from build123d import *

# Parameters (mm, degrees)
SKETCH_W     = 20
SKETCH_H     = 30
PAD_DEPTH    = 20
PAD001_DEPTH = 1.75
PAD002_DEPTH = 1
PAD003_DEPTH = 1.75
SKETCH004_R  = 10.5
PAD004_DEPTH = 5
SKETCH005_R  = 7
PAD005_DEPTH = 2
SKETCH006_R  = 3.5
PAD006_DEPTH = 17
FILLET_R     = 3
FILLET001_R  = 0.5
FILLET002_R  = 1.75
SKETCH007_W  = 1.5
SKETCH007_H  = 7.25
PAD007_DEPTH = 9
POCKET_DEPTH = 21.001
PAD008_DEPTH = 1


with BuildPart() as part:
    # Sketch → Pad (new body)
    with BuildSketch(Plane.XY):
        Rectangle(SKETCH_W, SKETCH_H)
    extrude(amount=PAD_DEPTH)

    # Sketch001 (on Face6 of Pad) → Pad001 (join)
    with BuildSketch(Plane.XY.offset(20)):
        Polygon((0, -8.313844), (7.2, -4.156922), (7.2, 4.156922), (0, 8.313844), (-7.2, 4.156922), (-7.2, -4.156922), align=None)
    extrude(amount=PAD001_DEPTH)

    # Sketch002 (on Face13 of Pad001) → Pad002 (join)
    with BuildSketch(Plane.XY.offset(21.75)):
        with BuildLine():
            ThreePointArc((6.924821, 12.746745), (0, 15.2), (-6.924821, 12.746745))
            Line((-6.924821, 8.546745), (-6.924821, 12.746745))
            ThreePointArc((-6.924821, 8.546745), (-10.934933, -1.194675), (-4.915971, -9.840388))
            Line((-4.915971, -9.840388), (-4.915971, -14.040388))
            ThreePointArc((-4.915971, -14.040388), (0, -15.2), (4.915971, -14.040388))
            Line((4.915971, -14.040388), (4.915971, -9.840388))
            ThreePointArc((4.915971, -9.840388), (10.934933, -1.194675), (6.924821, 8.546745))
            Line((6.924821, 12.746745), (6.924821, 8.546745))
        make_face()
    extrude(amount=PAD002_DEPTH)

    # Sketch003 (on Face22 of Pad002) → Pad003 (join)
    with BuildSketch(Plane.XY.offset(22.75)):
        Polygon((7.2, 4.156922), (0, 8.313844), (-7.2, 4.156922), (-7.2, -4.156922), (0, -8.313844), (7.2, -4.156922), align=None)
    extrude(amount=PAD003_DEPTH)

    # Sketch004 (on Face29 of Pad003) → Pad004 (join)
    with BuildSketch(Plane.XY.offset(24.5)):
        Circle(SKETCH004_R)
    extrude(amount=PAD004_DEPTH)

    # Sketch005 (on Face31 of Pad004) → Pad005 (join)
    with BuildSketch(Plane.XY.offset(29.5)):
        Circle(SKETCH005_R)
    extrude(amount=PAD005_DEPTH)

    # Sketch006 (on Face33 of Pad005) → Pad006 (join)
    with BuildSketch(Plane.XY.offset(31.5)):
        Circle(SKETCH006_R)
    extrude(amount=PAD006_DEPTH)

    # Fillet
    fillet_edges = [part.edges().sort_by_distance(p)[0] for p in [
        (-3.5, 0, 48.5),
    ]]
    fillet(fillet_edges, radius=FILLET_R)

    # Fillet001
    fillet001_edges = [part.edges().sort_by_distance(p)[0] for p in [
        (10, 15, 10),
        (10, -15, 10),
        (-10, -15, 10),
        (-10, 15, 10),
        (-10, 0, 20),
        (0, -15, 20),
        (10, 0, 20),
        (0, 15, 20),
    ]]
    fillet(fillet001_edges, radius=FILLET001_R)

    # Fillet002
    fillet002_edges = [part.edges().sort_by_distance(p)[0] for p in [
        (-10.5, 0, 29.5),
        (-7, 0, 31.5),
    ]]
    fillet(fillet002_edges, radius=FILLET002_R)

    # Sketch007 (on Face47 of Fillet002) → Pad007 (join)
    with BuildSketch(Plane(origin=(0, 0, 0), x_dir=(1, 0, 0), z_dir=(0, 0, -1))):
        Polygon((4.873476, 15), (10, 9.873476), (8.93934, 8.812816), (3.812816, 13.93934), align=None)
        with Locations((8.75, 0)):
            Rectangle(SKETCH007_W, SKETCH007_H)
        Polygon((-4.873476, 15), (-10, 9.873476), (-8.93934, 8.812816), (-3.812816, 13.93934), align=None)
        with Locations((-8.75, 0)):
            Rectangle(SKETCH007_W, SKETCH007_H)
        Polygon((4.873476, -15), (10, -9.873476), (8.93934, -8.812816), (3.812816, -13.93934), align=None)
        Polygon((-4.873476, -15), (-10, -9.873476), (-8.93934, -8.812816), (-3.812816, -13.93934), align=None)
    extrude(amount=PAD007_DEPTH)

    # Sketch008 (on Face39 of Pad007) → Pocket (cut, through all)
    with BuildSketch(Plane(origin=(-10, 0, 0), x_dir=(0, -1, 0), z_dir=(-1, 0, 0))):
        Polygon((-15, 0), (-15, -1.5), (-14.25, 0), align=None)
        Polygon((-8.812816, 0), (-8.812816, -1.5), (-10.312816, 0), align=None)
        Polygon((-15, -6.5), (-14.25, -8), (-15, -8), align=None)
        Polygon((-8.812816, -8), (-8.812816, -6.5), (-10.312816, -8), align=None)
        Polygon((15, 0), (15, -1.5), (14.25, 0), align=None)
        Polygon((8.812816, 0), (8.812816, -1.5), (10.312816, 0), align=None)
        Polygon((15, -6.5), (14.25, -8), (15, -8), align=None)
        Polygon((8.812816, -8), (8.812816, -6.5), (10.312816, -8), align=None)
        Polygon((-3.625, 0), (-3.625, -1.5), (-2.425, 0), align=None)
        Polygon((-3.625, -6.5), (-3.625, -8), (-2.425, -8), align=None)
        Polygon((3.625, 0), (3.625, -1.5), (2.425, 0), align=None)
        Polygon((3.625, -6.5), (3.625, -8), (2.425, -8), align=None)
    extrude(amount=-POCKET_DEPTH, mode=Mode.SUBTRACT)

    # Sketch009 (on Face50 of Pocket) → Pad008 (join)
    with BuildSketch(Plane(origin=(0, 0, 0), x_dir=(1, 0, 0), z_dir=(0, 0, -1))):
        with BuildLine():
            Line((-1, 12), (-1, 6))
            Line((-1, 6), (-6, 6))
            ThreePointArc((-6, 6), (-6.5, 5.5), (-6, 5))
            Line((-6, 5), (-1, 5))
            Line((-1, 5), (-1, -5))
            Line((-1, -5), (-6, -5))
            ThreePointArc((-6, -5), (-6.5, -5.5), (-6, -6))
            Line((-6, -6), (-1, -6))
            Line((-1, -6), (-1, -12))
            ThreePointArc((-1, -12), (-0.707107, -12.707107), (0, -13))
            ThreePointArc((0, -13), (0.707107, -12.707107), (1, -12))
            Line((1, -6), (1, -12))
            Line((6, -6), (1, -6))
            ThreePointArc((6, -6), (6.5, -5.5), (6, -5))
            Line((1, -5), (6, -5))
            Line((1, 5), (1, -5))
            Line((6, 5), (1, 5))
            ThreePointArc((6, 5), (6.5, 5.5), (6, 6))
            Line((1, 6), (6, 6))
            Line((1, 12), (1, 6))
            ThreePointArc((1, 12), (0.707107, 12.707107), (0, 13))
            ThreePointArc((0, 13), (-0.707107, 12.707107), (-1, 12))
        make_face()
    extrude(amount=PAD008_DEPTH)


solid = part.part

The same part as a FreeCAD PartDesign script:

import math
import FreeCAD as App
import Part
import Sketcher
Q = App.Units.Quantity


def edges_at(feature, points):
    """Names of the edges that pass closest to the given points."""
    edges = feature.Shape.Edges
    near = lambda p: min(range(len(edges)), key=lambda i: edges[i].distToShape(Part.Vertex(*p))[0])
    return sorted({f"Edge{near(p) + 1}" for p in points})

doc = App.newDocument("Part")
body = doc.addObject("PartDesign::Body", "Body")

sketch1 = doc.addObject("Sketcher::SketchObject", "Sketch")
body.addObject(sketch1)
sketch1.AttachmentSupport = (doc.XY_Plane, [""])
sketch1.MapMode = "FlatFace"
sketch1.addGeometry([
    Part.LineSegment(App.Vector(-10, 15, 0), App.Vector(-10, -15, 0)),
    Part.LineSegment(App.Vector(-10, -15, 0), App.Vector(10, -15, 0)),
    Part.LineSegment(App.Vector(10, -15, 0), App.Vector(10, 15, 0)),
    Part.LineSegment(App.Vector(10, 15, 0), App.Vector(-10, 15, 0)),
], False)
sketch1.addConstraint([
    Sketcher.Constraint("Coincident", 0, 2, 1, 1),
    Sketcher.Constraint("Coincident", 1, 2, 2, 1),
    Sketcher.Constraint("Coincident", 2, 2, 3, 1),
    Sketcher.Constraint("Coincident", 3, 2, 0, 1),
    Sketcher.Constraint("Vertical", 0),
    Sketcher.Constraint("Horizontal", 1),
    Sketcher.Constraint("Vertical", 2),
    Sketcher.Constraint("Horizontal", 3),
    Sketcher.Constraint("Symmetric", 0, 2, 2, 2, -1, 1),
    Sketcher.Constraint("DistanceX", 1, 1, 1, 2, Q("20 mm")),
    Sketcher.Constraint("DistanceY", 0, 2, 0, 1, Q("30 mm")),
])
pad1 = doc.addObject("PartDesign::Pad", "Pad")
body.addObject(pad1)
pad1.Profile = sketch1
pad1.Length = 20

sketch2 = doc.addObject("Sketcher::SketchObject", "Sketch001")
body.addObject(sketch2)
sketch2.AttachmentSupport = (doc.XY_Plane, [""])
sketch2.MapMode = "FlatFace"
sketch2.AttachmentOffset = App.Placement(App.Vector(0, 0, 20), App.Rotation())
sketch2.addGeometry([
    Part.LineSegment(App.Vector(0, -8, 0), App.Vector(7, -4, 0)),
    Part.LineSegment(App.Vector(7, -4, 0), App.Vector(7, 4, 0)),
    Part.LineSegment(App.Vector(7, 4, 0), App.Vector(0, 8, 0)),
    Part.LineSegment(App.Vector(0, 8, 0), App.Vector(-7, 4, 0)),
    Part.LineSegment(App.Vector(-7, 4, 0), App.Vector(-7, -4, 0)),
    Part.LineSegment(App.Vector(-7, -4, 0), App.Vector(0, -8, 0)),
], False)
sketch2.addConstraint([
    Sketcher.Constraint("Coincident", 0, 2, 1, 1),
    Sketcher.Constraint("Coincident", 1, 2, 2, 1),
    Sketcher.Constraint("Coincident", 2, 2, 3, 1),
    Sketcher.Constraint("Coincident", 3, 2, 4, 1),
    Sketcher.Constraint("Coincident", 4, 2, 5, 1),
    Sketcher.Constraint("Coincident", 5, 2, 0, 1),
    Sketcher.Constraint("Vertical", 1),
    Sketcher.Constraint("Vertical", 4),
    Sketcher.Constraint("Symmetric", 0, 2, 3, 2, -1, 1),
    Sketcher.Constraint("Symmetric", 2, 2, 5, 2, -1, 1),
    Sketcher.Constraint("PointOnObject", 2, 2, -2),
    Sketcher.Constraint("Parallel", 2, 5),
    Sketcher.Constraint("Horizontal", 1, 2, 3, 2),
    Sketcher.Constraint("Angle", 0, Q("30 deg")),
    Sketcher.Constraint("DistanceX", -1, 1, 0, 2, Q("7.2 mm")),
    Sketcher.Constraint("DistanceY", 1, 1, 1, 2, Q("8.313844 mm")),
])
pad2 = doc.addObject("PartDesign::Pad", "Pad001")
body.addObject(pad2)
pad2.Profile = sketch2
pad2.Length = 1.75

sketch3 = doc.addObject("Sketcher::SketchObject", "Sketch002")
body.addObject(sketch3)
sketch3.AttachmentSupport = (doc.XY_Plane, [""])
sketch3.MapMode = "FlatFace"
sketch3.AttachmentOffset = App.Placement(App.Vector(0, 0, 21.75), App.Rotation())
sketch3.addGeometry([
    Part.ArcOfCircle(Part.Circle(App.Vector(0, 4.2, 0), App.Vector(0, 0, 1), 11), math.radians(51), math.radians(129)),
    Part.LineSegment(App.Vector(-6.9, 12.7, 0), App.Vector(-6.9, 8.5, 0)),
    Part.ArcOfCircle(Part.Circle(App.Vector(0, 0, 0), App.Vector(0, 0, 1), 11), math.radians(129), math.radians(243)),
    Part.LineSegment(App.Vector(-4.9, -9.8, 0), App.Vector(-4.9, -14, 0)),
    Part.ArcOfCircle(Part.Circle(App.Vector(0, -4.2, 0), App.Vector(0, 0, 1), 11), math.radians(-117), math.radians(-63)),
    Part.LineSegment(App.Vector(4.9, -14, 0), App.Vector(4.9, -9.8, 0)),
    Part.ArcOfCircle(Part.Circle(App.Vector(0, 0, 0), App.Vector(0, 0, 1), 11), math.radians(-63), math.radians(51)),
    Part.LineSegment(App.Vector(6.9, 8.5, 0), App.Vector(6.9, 12.7, 0)),
], False)
sketch3.addConstraint([
    Sketcher.Constraint("Coincident", 0, 2, 1, 1),
    Sketcher.Constraint("Coincident", 1, 2, 2, 1),
    Sketcher.Constraint("Coincident", 2, 2, 3, 1),
    Sketcher.Constraint("Coincident", 3, 2, 4, 1),
    Sketcher.Constraint("Coincident", 4, 2, 5, 1),
    Sketcher.Constraint("Coincident", 5, 2, 6, 1),
    Sketcher.Constraint("Coincident", 6, 2, 7, 1),
    Sketcher.Constraint("Coincident", 7, 2, 0, 1),
    Sketcher.Constraint("Vertical", 1),
    Sketcher.Constraint("Vertical", 3),
    Sketcher.Constraint("Vertical", 5),
    Sketcher.Constraint("Vertical", 7),
    Sketcher.Constraint("Coincident", 2, 3, -1, 1),
    Sketcher.Constraint("Coincident", 6, 3, -1, 1),
    Sketcher.Constraint("Equal", 0, 2),
    Sketcher.Constraint("Equal", 2, 6),
    Sketcher.Constraint("Symmetric", 0, 3, 4, 3, -1, 1),
    Sketcher.Constraint("Symmetric", 3, 2, 4, 2, -2),
    Sketcher.Constraint("Horizontal", 1, 2, 6, 2),
    Sketcher.Constraint("Equal", 1, 3),
    Sketcher.Constraint("Radius", 0, Q("10.999999 mm")),
    Sketcher.Constraint("DistanceY", 1, 2, 1, 1, Q("4.2 mm")),
    Sketcher.Constraint("DistanceX", 0, 2, -1, 1, Q("6.924821 mm")),
    Sketcher.Constraint("DistanceX", 2, 2, -1, 1, Q("4.915971 mm")),
])
pad3 = doc.addObject("PartDesign::Pad", "Pad002")
body.addObject(pad3)
pad3.Profile = sketch3
pad3.Length = 1

sketch4 = doc.addObject("Sketcher::SketchObject", "Sketch003")
body.addObject(sketch4)
sketch4.AttachmentSupport = (doc.XY_Plane, [""])
sketch4.MapMode = "FlatFace"
sketch4.AttachmentOffset = App.Placement(App.Vector(0, 0, 22.75), App.Rotation())
sketch4.addGeometry([
    Part.LineSegment(App.Vector(7, 4, 0), App.Vector(0, 8, 0)),
    Part.LineSegment(App.Vector(0, 8, 0), App.Vector(-7, 4, 0)),
    Part.LineSegment(App.Vector(-7, 4, 0), App.Vector(-7, -4, 0)),
    Part.LineSegment(App.Vector(-7, -4, 0), App.Vector(0, -8, 0)),
    Part.LineSegment(App.Vector(0, -8, 0), App.Vector(7, -4, 0)),
    Part.LineSegment(App.Vector(7, -4, 0), App.Vector(7, 4, 0)),
], False)
sketch4.addConstraint([
    Sketcher.Constraint("Coincident", 0, 2, 1, 1),
    Sketcher.Constraint("Coincident", 1, 2, 2, 1),
    Sketcher.Constraint("Coincident", 2, 2, 3, 1),
    Sketcher.Constraint("Coincident", 3, 2, 4, 1),
    Sketcher.Constraint("Coincident", 4, 2, 5, 1),
    Sketcher.Constraint("Coincident", 5, 2, 0, 1),
    Sketcher.Constraint("Vertical", 2),
    Sketcher.Constraint("Vertical", 5),
    Sketcher.Constraint("Symmetric", 0, 2, 3, 2, -1, 1),
    Sketcher.Constraint("Symmetric", 1, 2, 4, 2, -1, 1),
    Sketcher.Constraint("PointOnObject", 0, 2, -2),
    Sketcher.Constraint("Parallel", 0, 3),
    Sketcher.Constraint("Horizontal", 2, 2, 4, 2),
    Sketcher.Constraint("Angle", 0, Q("150 deg")),
    Sketcher.Constraint("DistanceX", 1, 2, -1, 1, Q("7.2 mm")),
    Sketcher.Constraint("DistanceY", 2, 2, 2, 1, Q("8.313844 mm")),
])
pad4 = doc.addObject("PartDesign::Pad", "Pad003")
body.addObject(pad4)
pad4.Profile = sketch4
pad4.Length = 1.75

sketch5 = doc.addObject("Sketcher::SketchObject", "Sketch004")
body.addObject(sketch5)
sketch5.AttachmentSupport = (doc.XY_Plane, [""])
sketch5.MapMode = "FlatFace"
sketch5.AttachmentOffset = App.Placement(App.Vector(0, 0, 24.5), App.Rotation())
sketch5.addGeometry(Part.Circle(App.Vector(0, 0, 0), App.Vector(0, 0, 1), 10), False)
sketch5.addConstraint([
    Sketcher.Constraint("Coincident", 0, 3, -1, 1),
    Sketcher.Constraint("Diameter", 0, Q("21 mm")),
])
pad5 = doc.addObject("PartDesign::Pad", "Pad004")
body.addObject(pad5)
pad5.Profile = sketch5
pad5.Length = 5

sketch6 = doc.addObject("Sketcher::SketchObject", "Sketch005")
body.addObject(sketch6)
sketch6.AttachmentSupport = (doc.XY_Plane, [""])
sketch6.MapMode = "FlatFace"
sketch6.AttachmentOffset = App.Placement(App.Vector(0, 0, 29.5), App.Rotation())
sketch6.addGeometry(Part.Circle(App.Vector(0, 0, 0), App.Vector(0, 0, 1), 7), False)
sketch6.addConstraint([
    Sketcher.Constraint("Coincident", 0, 3, -1, 1),
    Sketcher.Constraint("Diameter", 0, Q("14 mm")),
])
pad6 = doc.addObject("PartDesign::Pad", "Pad005")
body.addObject(pad6)
pad6.Profile = sketch6
pad6.Length = 2

sketch7 = doc.addObject("Sketcher::SketchObject", "Sketch006")
body.addObject(sketch7)
sketch7.AttachmentSupport = (doc.XY_Plane, [""])
sketch7.MapMode = "FlatFace"
sketch7.AttachmentOffset = App.Placement(App.Vector(0, 0, 31.5), App.Rotation())
sketch7.addGeometry(Part.Circle(App.Vector(0, 0, 0), App.Vector(0, 0, 1), 3.5), False)
sketch7.addConstraint([
    Sketcher.Constraint("Coincident", 0, 3, -1, 1),
    Sketcher.Constraint("Diameter", 0, Q("7 mm")),
])
pad7 = doc.addObject("PartDesign::Pad", "Pad006")
body.addObject(pad7)
pad7.Profile = sketch7
pad7.Length = 17
doc.recompute()

fillet = doc.addObject("PartDesign::Fillet", "Fillet")
body.addObject(fillet)
fillet.Base = (pad7, edges_at(pad7, [(-3.5, 0, 48.5)]))
fillet.Radius = 3
doc.recompute()

fillet2 = doc.addObject("PartDesign::Fillet", "Fillet001")
body.addObject(fillet2)
fillet2.Base = (fillet, edges_at(fillet, [
    (10, 15, 10),
    (10, -15, 10),
    (-10, -15, 10),
    (-10, 15, 10),
    (-10, 0, 20),
    (0, -15, 20),
    (10, 0, 20),
    (0, 15, 20),
]))
fillet2.Radius = 0.5
doc.recompute()

fillet3 = doc.addObject("PartDesign::Fillet", "Fillet002")
body.addObject(fillet3)
fillet3.Base = (fillet2, edges_at(fillet2, [(-10.5, 0, 29.5), (-7, 0, 31.5)]))
fillet3.Radius = 1.75

sketch8 = doc.addObject("Sketcher::SketchObject", "Sketch007")
body.addObject(sketch8)
sketch8.AttachmentSupport = (doc.XY_Plane, [""])
sketch8.MapMode = "FlatFace"
sketch8.addGeometry([
    Part.LineSegment(App.Vector(10, -9.9, 0), App.Vector(4.9, -15, 0)),
    Part.LineSegment(App.Vector(4.9, -15, 0), App.Vector(3.8, -13.9, 0)),
    Part.LineSegment(App.Vector(3.8, -13.9, 0), App.Vector(8.9, -8.8, 0)),
    Part.LineSegment(App.Vector(8.9, -8.8, 0), App.Vector(10, -9.9, 0)),
    Part.LineSegment(App.Vector(8, -3.6, 0), App.Vector(8, 3.6, 0)),
    Part.LineSegment(App.Vector(8, 3.6, 0), App.Vector(9.5, 3.6, 0)),
    Part.LineSegment(App.Vector(9.5, 3.6, 0), App.Vector(9.5, -3.6, 0)),
    Part.LineSegment(App.Vector(9.5, -3.6, 0), App.Vector(8, -3.6, 0)),
    Part.LineSegment(App.Vector(-4.9, -15, 0), App.Vector(-10, -9.9, 0)),
    Part.LineSegment(App.Vector(-10, -9.9, 0), App.Vector(-8.9, -8.8, 0)),
    Part.LineSegment(App.Vector(-8.9, -8.8, 0), App.Vector(-3.8, -13.9, 0)),
    Part.LineSegment(App.Vector(-3.8, -13.9, 0), App.Vector(-4.9, -15, 0)),
    Part.LineSegment(App.Vector(-9.5, -3.6, 0), App.Vector(-9.5, 3.6, 0)),
    Part.LineSegment(App.Vector(-9.5, 3.6, 0), App.Vector(-8, 3.6, 0)),
    Part.LineSegment(App.Vector(-8, 3.6, 0), App.Vector(-8, -3.6, 0)),
    Part.LineSegment(App.Vector(-8, -3.6, 0), App.Vector(-9.5, -3.6, 0)),
    Part.LineSegment(App.Vector(4.9, 15, 0), App.Vector(10, 9.9, 0)),
    Part.LineSegment(App.Vector(10, 9.9, 0), App.Vector(8.9, 8.8, 0)),
    Part.LineSegment(App.Vector(8.9, 8.8, 0), App.Vector(3.8, 13.9, 0)),
    Part.LineSegment(App.Vector(3.8, 13.9, 0), App.Vector(4.9, 15, 0)),
    Part.LineSegment(App.Vector(-10, 9.9, 0), App.Vector(-4.9, 15, 0)),
    Part.LineSegment(App.Vector(-4.9, 15, 0), App.Vector(-3.8, 13.9, 0)),
    Part.LineSegment(App.Vector(-3.8, 13.9, 0), App.Vector(-8.9, 8.8, 0)),
    Part.LineSegment(App.Vector(-8.9, 8.8, 0), App.Vector(-10, 9.9, 0)),
], False)
sketch8.addConstraint([
    Sketcher.Constraint("Coincident", 0, 2, 1, 1),
    Sketcher.Constraint("Coincident", 1, 2, 2, 1),
    Sketcher.Constraint("Coincident", 2, 2, 3, 1),
    Sketcher.Constraint("Coincident", 3, 2, 0, 1),
    Sketcher.Constraint("Coincident", 4, 2, 5, 1),
    Sketcher.Constraint("Coincident", 5, 2, 6, 1),
    Sketcher.Constraint("Coincident", 6, 2, 7, 1),
    Sketcher.Constraint("Coincident", 7, 2, 4, 1),
    Sketcher.Constraint("Coincident", 8, 2, 9, 1),
    Sketcher.Constraint("Coincident", 9, 2, 10, 1),
    Sketcher.Constraint("Coincident", 10, 2, 11, 1),
    Sketcher.Constraint("Coincident", 11, 2, 8, 1),
    Sketcher.Constraint("Coincident", 12, 2, 13, 1),
    Sketcher.Constraint("Coincident", 13, 2, 14, 1),
    Sketcher.Constraint("Coincident", 14, 2, 15, 1),
    Sketcher.Constraint("Coincident", 15, 2, 12, 1),
    Sketcher.Constraint("Coincident", 16, 2, 17, 1),
    Sketcher.Constraint("Coincident", 17, 2, 18, 1),
    Sketcher.Constraint("Coincident", 18, 2, 19, 1),
    Sketcher.Constraint("Coincident", 19, 2, 16, 1),
    Sketcher.Constraint("Coincident", 20, 2, 21, 1),
    Sketcher.Constraint("Coincident", 21, 2, 22, 1),
    Sketcher.Constraint("Coincident", 22, 2, 23, 1),
    Sketcher.Constraint("Coincident", 23, 2, 20, 1),
    Sketcher.Constraint("Vertical", 4),
    Sketcher.Constraint("Horizontal", 5),
    Sketcher.Constraint("Vertical", 6),
    Sketcher.Constraint("Horizontal", 7),
    Sketcher.Constraint("Vertical", 12),
    Sketcher.Constraint("Horizontal", 13),
    Sketcher.Constraint("Vertical", 14),
    Sketcher.Constraint("Horizontal", 15),
    Sketcher.Constraint("Symmetric", 6, 2, 12, 2, -1, 1),
    Sketcher.Constraint("Symmetric", 4, 2, 14, 2, -1, 1),
    Sketcher.Constraint("Symmetric", 8, 2, 16, 2, -1, 1),
    Sketcher.Constraint("Symmetric", 9, 2, 17, 2, -1, 1),
    Sketcher.Constraint("Symmetric", 10, 2, 18, 2, -1, 1),
    Sketcher.Constraint("Symmetric", 11, 2, 19, 2, -1, 1),
    Sketcher.Constraint("Symmetric", 0, 2, 20, 2, -1, 1),
    Sketcher.Constraint("Symmetric", 1, 2, 21, 2, -1, 1),
    Sketcher.Constraint("Symmetric", 2, 2, 22, 2, -1, 1),
    Sketcher.Constraint("Symmetric", 3, 2, 23, 2, -1, 1),
    Sketcher.Constraint("Symmetric", 3, 2, 8, 2, -2),
    Sketcher.Constraint("Symmetric", 2, 2, 9, 2, -2),
    Sketcher.Constraint("Symmetric", 1, 2, 10, 2, -2),
    Sketcher.Constraint("Symmetric", 0, 2, 11, 2, -2),
    Sketcher.Constraint("Perpendicular", 0, 1),
    Sketcher.Constraint("Perpendicular", 1, 2),
    Sketcher.Constraint("Perpendicular", 2, 3),
    Sketcher.Constraint("Parallel", 3, 8),
    Sketcher.Constraint("Horizontal", 5, 2, 12, 2),
    Sketcher.Constraint("DistanceX", 5, 1, 5, 2, Q("1.5 mm")),
    Sketcher.Constraint("DistanceY", 0, 2, -1, 1, Q("15 mm")),
    Sketcher.Constraint("DistanceX", -1, 1, 3, 2, Q("10 mm")),
    Sketcher.Constraint("DistanceX", -1, 1, 4, 2, Q("8 mm")),
    Sketcher.Constraint("Distance", 1, Q("1.5 mm")),
    Sketcher.Constraint("DistanceY", 4, 1, 4, 2, Q("7.25 mm")),
    Sketcher.Constraint("Distance", 0, Q("7.25 mm")),
])
pad8 = doc.addObject("PartDesign::Pad", "Pad007")
body.addObject(pad8)
pad8.Profile = sketch8
pad8.Length = 9
pad8.Reversed = True

sketch9 = doc.addObject("Sketcher::SketchObject", "Sketch008")
body.addObject(sketch9)
sketch9.AttachmentSupport = (doc.YZ_Plane, [""])
sketch9.MapMode = "FlatFace"
sketch9.AttachmentOffset = App.Placement(App.Vector(0, 0, -10), App.Rotation())
sketch9.addGeometry([
    Part.LineSegment(App.Vector(15, 0, 0), App.Vector(15, -1.5, 0)),
    Part.LineSegment(App.Vector(15, -1.5, 0), App.Vector(14.2, 0, 0)),
    Part.LineSegment(App.Vector(14.2, 0, 0), App.Vector(15, 0, 0)),
    Part.LineSegment(App.Vector(8.8, -1.5, 0), App.Vector(8.8, 0, 0)),
    Part.LineSegment(App.Vector(8.8, 0, 0), App.Vector(10.3, 0, 0)),
    Part.LineSegment(App.Vector(10.3, 0, 0), App.Vector(8.8, -1.5, 0)),
    Part.LineSegment(App.Vector(14.2, -8, 0), App.Vector(15, -6.5, 0)),
    Part.LineSegment(App.Vector(15, -6.5, 0), App.Vector(15, -8, 0)),
    Part.LineSegment(App.Vector(15, -8, 0), App.Vector(14.2, -8, 0)),
    Part.LineSegment(App.Vector(8.8, -8, 0), App.Vector(8.8, -6.5, 0)),
    Part.LineSegment(App.Vector(8.8, -6.5, 0), App.Vector(10.3, -8, 0)),
    Part.LineSegment(App.Vector(10.3, -8, 0), App.Vector(8.8, -8, 0)),
    Part.LineSegment(App.Vector(-15, -1.5, 0), App.Vector(-15, 0, 0)),
    Part.LineSegment(App.Vector(-15, 0, 0), App.Vector(-14.2, 0, 0)),
    Part.LineSegment(App.Vector(-14.2, 0, 0), App.Vector(-15, -1.5, 0)),
    Part.LineSegment(App.Vector(-8.8, 0, 0), App.Vector(-8.8, -1.5, 0)),
    Part.LineSegment(App.Vector(-8.8, -1.5, 0), App.Vector(-10.3, 0, 0)),
    Part.LineSegment(App.Vector(-10.3, 0, 0), App.Vector(-8.8, 0, 0)),
    Part.LineSegment(App.Vector(-15, -6.5, 0), App.Vector(-14.2, -8, 0)),
    Part.LineSegment(App.Vector(-14.2, -8, 0), App.Vector(-15, -8, 0)),
    Part.LineSegment(App.Vector(-15, -8, 0), App.Vector(-15, -6.5, 0)),
    Part.LineSegment(App.Vector(-8.8, -6.5, 0), App.Vector(-8.8, -8, 0)),
    Part.LineSegment(App.Vector(-8.8, -8, 0), App.Vector(-10.3, -8, 0)),
    Part.LineSegment(App.Vector(-10.3, -8, 0), App.Vector(-8.8, -6.5, 0)),
    Part.LineSegment(App.Vector(3.6, 0, 0), App.Vector(3.6, -1.5, 0)),
    Part.LineSegment(App.Vector(3.6, -1.5, 0), App.Vector(2.4, 0, 0)),
    Part.LineSegment(App.Vector(2.4, 0, 0), App.Vector(3.6, 0, 0)),
    Part.LineSegment(App.Vector(3.6, -6.5, 0), App.Vector(3.6, -8, 0)),
    Part.LineSegment(App.Vector(3.6, -8, 0), App.Vector(2.4, -8, 0)),
    Part.LineSegment(App.Vector(2.4, -8, 0), App.Vector(3.6, -6.5, 0)),
    Part.LineSegment(App.Vector(-3.6, -1.5, 0), App.Vector(-3.6, 0, 0)),
    Part.LineSegment(App.Vector(-3.6, 0, 0), App.Vector(-2.4, 0, 0)),
    Part.LineSegment(App.Vector(-2.4, 0, 0), App.Vector(-3.6, -1.5, 0)),
    Part.LineSegment(App.Vector(-3.6, -8, 0), App.Vector(-3.6, -6.5, 0)),
    Part.LineSegment(App.Vector(-3.6, -6.5, 0), App.Vector(-2.4, -8, 0)),
    Part.LineSegment(App.Vector(-2.4, -8, 0), App.Vector(-3.6, -8, 0)),
], False)
sketch9.addConstraint([
    Sketcher.Constraint("Coincident", 0, 2, 1, 1),
    Sketcher.Constraint("Coincident", 1, 2, 2, 1),
    Sketcher.Constraint("Coincident", 2, 2, 0, 1),
    Sketcher.Constraint("Coincident", 3, 2, 4, 1),
    Sketcher.Constraint("Coincident", 4, 2, 5, 1),
    Sketcher.Constraint("Coincident", 5, 2, 3, 1),
    Sketcher.Constraint("Coincident", 6, 2, 7, 1),
    Sketcher.Constraint("Coincident", 7, 2, 8, 1),
    Sketcher.Constraint("Coincident", 8, 2, 6, 1),
    Sketcher.Constraint("Coincident", 9, 2, 10, 1),
    Sketcher.Constraint("Coincident", 10, 2, 11, 1),
    Sketcher.Constraint("Coincident", 11, 2, 9, 1),
    Sketcher.Constraint("Coincident", 12, 2, 13, 1),
    Sketcher.Constraint("Coincident", 13, 2, 14, 1),
    Sketcher.Constraint("Coincident", 14, 2, 12, 1),
    Sketcher.Constraint("Coincident", 15, 2, 16, 1),
    Sketcher.Constraint("Coincident", 16, 2, 17, 1),
    Sketcher.Constraint("Coincident", 17, 2, 15, 1),
    Sketcher.Constraint("Coincident", 18, 2, 19, 1),
    Sketcher.Constraint("Coincident", 19, 2, 20, 1),
    Sketcher.Constraint("Coincident", 20, 2, 18, 1),
    Sketcher.Constraint("Coincident", 21, 2, 22, 1),
    Sketcher.Constraint("Coincident", 22, 2, 23, 1),
    Sketcher.Constraint("Coincident", 23, 2, 21, 1),
    Sketcher.Constraint("Coincident", 24, 2, 25, 1),
    Sketcher.Constraint("Coincident", 25, 2, 26, 1),
    Sketcher.Constraint("Coincident", 26, 2, 24, 1),
    Sketcher.Constraint("Coincident", 27, 2, 28, 1),
    Sketcher.Constraint("Coincident", 28, 2, 29, 1),
    Sketcher.Constraint("Coincident", 29, 2, 27, 1),
    Sketcher.Constraint("Coincident", 30, 2, 31, 1),
    Sketcher.Constraint("Coincident", 31, 2, 32, 1),
    Sketcher.Constraint("Coincident", 32, 2, 30, 1),
    Sketcher.Constraint("Coincident", 33, 2, 34, 1),
    Sketcher.Constraint("Coincident", 34, 2, 35, 1),
    Sketcher.Constraint("Coincident", 35, 2, 33, 1),
    Sketcher.Constraint("Vertical", 0),
    Sketcher.Constraint("Horizontal", 2),
    Sketcher.Constraint("Vertical", 3),
    Sketcher.Constraint("Horizontal", 4),
    Sketcher.Constraint("Vertical", 7),
    Sketcher.Constraint("Horizontal", 8),
    Sketcher.Constraint("Vertical", 9),
    Sketcher.Constraint("Horizontal", 11),
    Sketcher.Constraint("Vertical", 12),
    Sketcher.Constraint("Horizontal", 13),
    Sketcher.Constraint("Vertical", 15),
    Sketcher.Constraint("Horizontal", 17),
    Sketcher.Constraint("Horizontal", 19),
    Sketcher.Constraint("Vertical", 20),
    Sketcher.Constraint("Vertical", 21),
    Sketcher.Constraint("Horizontal", 22),
    Sketcher.Constraint("Vertical", 24),
    Sketcher.Constraint("Horizontal", 26),
    Sketcher.Constraint("Vertical", 27),
    Sketcher.Constraint("Horizontal", 28),
    Sketcher.Constraint("Vertical", 30),
    Sketcher.Constraint("Horizontal", 31),
    Sketcher.Constraint("Vertical", 33),
    Sketcher.Constraint("Horizontal", 35),
    Sketcher.Constraint("Symmetric", 2, 2, 12, 2, -1, 1),
    Sketcher.Constraint("Symmetric", 4, 2, 16, 2, -1, 1),
    Sketcher.Constraint("Symmetric", 26, 2, 30, 2, -1, 1),
    Sketcher.Constraint("Symmetric", 1, 2, 13, 2, -2),
    Sketcher.Constraint("Symmetric", 5, 2, 15, 2, -2),
    Sketcher.Constraint("Symmetric", 8, 2, 18, 2, -2),
    Sketcher.Constraint("Symmetric", 6, 2, 20, 2, -2),
    Sketcher.Constraint("Symmetric", 11, 2, 21, 2, -2),
    Sketcher.Constraint("Symmetric", 25, 2, 31, 2, -2),
    Sketcher.Constraint("Symmetric", 29, 2, 33, 2, -2),
    Sketcher.Constraint("Symmetric", 28, 2, 34, 2, -2),
    Sketcher.Constraint("PointOnObject", 3, 2, -1),
    Sketcher.Constraint("Perpendicular", 5, 10),
    Sketcher.Constraint("Parallel", 6, 14),
    Sketcher.Constraint("Parallel", 10, 16),
    Sketcher.Constraint("Parallel", 1, 18),
    Sketcher.Constraint("Perpendicular", 16, 23),
    Sketcher.Constraint("Parallel", 29, 32),
    Sketcher.Constraint("Parallel", 25, 34),
    Sketcher.Constraint("Horizontal", 0, 2, 5, 2),
    Sketcher.Constraint("Horizontal", 6, 2, 9, 2),
    Sketcher.Constraint("Horizontal", 8, 2, 10, 2),
    Sketcher.Constraint("Horizontal", 20, 2, 23, 2),
    Sketcher.Constraint("Horizontal", 15, 2, 24, 2),
    Sketcher.Constraint("Horizontal", 22, 2, 27, 2),
    Sketcher.Constraint("Horizontal", 23, 2, 29, 2),
    Sketcher.Constraint("Vertical", 2, 2, 6, 2),
    Sketcher.Constraint("Vertical", 1, 2, 8, 2),
    Sketcher.Constraint("Vertical", 5, 2, 9, 2),
    Sketcher.Constraint("Vertical", 26, 2, 27, 2),
    Sketcher.Constraint("DistanceX", 4, 1, 4, 2, Q("1.5 mm")),
    Sketcher.Constraint("DistanceX", 26, 1, 26, 2, Q("1.2 mm")),
    Sketcher.Constraint("DistanceX", -1, 1, 0, 2, Q("15 mm")),
    Sketcher.Constraint("DistanceY", 7, 2, -1, 1, Q("8 mm")),
    Sketcher.Constraint("DistanceX", 2, 1, 2, 2, Q("0.75 mm")),
    Sketcher.Constraint("DistanceX", 30, 2, 25, 2, Q("6.05 mm")),
    Sketcher.Constraint("DistanceX", 15, 2, 5, 2, Q("17.625632 mm")),
])
pocket1 = doc.addObject("PartDesign::Pocket", "Pocket")
body.addObject(pocket1)
pocket1.Profile = sketch9
pocket1.Type = "ThroughAll"
pocket1.Reversed = True

sketch10 = doc.addObject("Sketcher::SketchObject", "Sketch009")
body.addObject(sketch10)
sketch10.AttachmentSupport = (doc.XY_Plane, [""])
sketch10.MapMode = "FlatFace"
sketch10.addGeometry([
    Part.LineSegment(App.Vector(-1, -12, 0), App.Vector(-1, -6, 0)),
    Part.LineSegment(App.Vector(-1, -6, 0), App.Vector(-6, -6, 0)),
    Part.ArcOfCircle(Part.Circle(App.Vector(-6, -5.5, 0), App.Vector(0, 0, 1), 0.5), math.radians(90), math.radians(270)),
    Part.LineSegment(App.Vector(-6, -5, 0), App.Vector(-1, -5, 0)),
    Part.LineSegment(App.Vector(-1, -5, 0), App.Vector(-1, 5, 0)),
    Part.LineSegment(App.Vector(-1, 5, 0), App.Vector(-6, 5, 0)),
    Part.ArcOfCircle(Part.Circle(App.Vector(-6, 5.5, 0), App.Vector(0, 0, 1), 0.5), math.radians(90), math.radians(270)),
    Part.LineSegment(App.Vector(-6, 6, 0), App.Vector(-1, 6, 0)),
    Part.LineSegment(App.Vector(-1, 6, 0), App.Vector(-1, 12, 0)),
    Part.ArcOfCircle(Part.Circle(App.Vector(0, 12, 0), App.Vector(0, 0, 1), 1), math.radians(90), math.radians(180)),
    Part.ArcOfCircle(Part.Circle(App.Vector(0, 12, 0), App.Vector(0, 0, 1), 1), math.radians(0), math.radians(90)),
    Part.LineSegment(App.Vector(1, 12, 0), App.Vector(1, 6, 0)),
    Part.LineSegment(App.Vector(1, 6, 0), App.Vector(6, 6, 0)),
    Part.ArcOfCircle(Part.Circle(App.Vector(6, 5.5, 0), App.Vector(0, 0, 1), 0.5), math.radians(-90), math.radians(90)),
    Part.LineSegment(App.Vector(6, 5, 0), App.Vector(1, 5, 0)),
    Part.LineSegment(App.Vector(1, 5, 0), App.Vector(1, -5, 0)),
    Part.LineSegment(App.Vector(1, -5, 0), App.Vector(6, -5, 0)),
    Part.ArcOfCircle(Part.Circle(App.Vector(6, -5.5, 0), App.Vector(0, 0, 1), 0.5), math.radians(-90), math.radians(90)),
    Part.LineSegment(App.Vector(6, -6, 0), App.Vector(1, -6, 0)),
    Part.LineSegment(App.Vector(1, -6, 0), App.Vector(1, -12, 0)),
    Part.ArcOfCircle(Part.Circle(App.Vector(0, -12, 0), App.Vector(0, 0, 1), 1), math.radians(-90), math.radians(0)),
    Part.ArcOfCircle(Part.Circle(App.Vector(0, -12, 0), App.Vector(0, 0, 1), 1), math.radians(180), math.radians(270)),
], False)
sketch10.addConstraint([
    Sketcher.Constraint("Coincident", 0, 2, 1, 1),
    Sketcher.Constraint("Tangent", 1, 2, 2, 2),
    Sketcher.Constraint("Tangent", 2, 1, 3, 1),
    Sketcher.Constraint("Coincident", 3, 2, 4, 1),
    Sketcher.Constraint("Coincident", 4, 2, 5, 1),
    Sketcher.Constraint("Tangent", 5, 2, 6, 2),
    Sketcher.Constraint("Tangent", 6, 1, 7, 1),
    Sketcher.Constraint("Coincident", 7, 2, 8, 1),
    Sketcher.Constraint("Tangent", 8, 2, 9, 2),
    Sketcher.Constraint("Tangent", 9, 1, 10, 2),
    Sketcher.Constraint("Tangent", 10, 1, 11, 1),
    Sketcher.Constraint("Coincident", 11, 2, 12, 1),
    Sketcher.Constraint("Tangent", 12, 2, 13, 2),
    Sketcher.Constraint("Tangent", 13, 1, 14, 1),
    Sketcher.Constraint("Coincident", 14, 2, 15, 1),
    Sketcher.Constraint("Coincident", 15, 2, 16, 1),
    Sketcher.Constraint("Tangent", 16, 2, 17, 2),
    Sketcher.Constraint("Tangent", 17, 1, 18, 1),
    Sketcher.Constraint("Coincident", 18, 2, 19, 1),
    Sketcher.Constraint("Tangent", 19, 2, 20, 2),
    Sketcher.Constraint("Tangent", 20, 1, 21, 2),
    Sketcher.Constraint("Tangent", 21, 1, 0, 1),
    Sketcher.Constraint("Vertical", 0),
    Sketcher.Constraint("Horizontal", 1),
    Sketcher.Constraint("Horizontal", 3),
    Sketcher.Constraint("Vertical", 4),
    Sketcher.Constraint("Horizontal", 5),
    Sketcher.Constraint("Horizontal", 7),
    Sketcher.Constraint("Vertical", 8),
    Sketcher.Constraint("Vertical", 11),
    Sketcher.Constraint("Horizontal", 12),
    Sketcher.Constraint("Horizontal", 14),
    Sketcher.Constraint("Vertical", 15),
    Sketcher.Constraint("Horizontal", 16),
    Sketcher.Constraint("Horizontal", 18),
    Sketcher.Constraint("Vertical", 19),
    Sketcher.Constraint("Equal", 2, 6),
    Sketcher.Constraint("Equal", 9, 10),
    Sketcher.Constraint("Equal", 6, 13),
    Sketcher.Constraint("Equal", 13, 17),
    Sketcher.Constraint("Equal", 10, 20),
    Sketcher.Constraint("Equal", 20, 21),
    Sketcher.Constraint("Symmetric", 2, 3, 13, 3, -1, 1),
    Sketcher.Constraint("Symmetric", 6, 3, 17, 3, -1, 1),
    Sketcher.Constraint("Symmetric", 9, 3, 20, 3, -1, 1),
    Sketcher.Constraint("Symmetric", 6, 3, 13, 3, -2),
    Sketcher.Constraint("PointOnObject", 9, 3, -2),
    Sketcher.Constraint("PointOnObject", 9, 1, -2),
    Sketcher.Constraint("PointOnObject", 20, 1, -2),
    Sketcher.Constraint("Vertical", 0, 2, 3, 2),
    Sketcher.Constraint("Vertical", 11, 2, 14, 2),
    Sketcher.Constraint("Radius", 9, Q("0.999999 mm")),
    Sketcher.Constraint("Radius", 2, Q("0.5 mm")),
    Sketcher.Constraint("DistanceX", 1, 2, 1, 1, Q("5 mm")),
    Sketcher.Constraint("DistanceY", 0, 1, 0, 2, Q("6 mm")),
    Sketcher.Constraint("DistanceY", 4, 1, 4, 2, Q("10 mm")),
])
pad9 = doc.addObject("PartDesign::Pad", "Pad008")
body.addObject(pad9)
pad9.Profile = sketch10
pad9.Length = 1
pad9.Reversed = True

doc.recompute()
